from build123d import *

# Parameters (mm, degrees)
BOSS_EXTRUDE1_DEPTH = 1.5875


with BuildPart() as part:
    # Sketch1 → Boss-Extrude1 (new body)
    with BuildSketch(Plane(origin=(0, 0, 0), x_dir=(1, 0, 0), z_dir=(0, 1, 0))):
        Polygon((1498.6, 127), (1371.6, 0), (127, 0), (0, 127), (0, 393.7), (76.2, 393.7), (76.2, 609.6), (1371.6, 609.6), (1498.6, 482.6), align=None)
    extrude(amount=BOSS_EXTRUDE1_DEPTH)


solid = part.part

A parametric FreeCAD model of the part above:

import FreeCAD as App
import Part
import Sketcher
from FreeCAD import Vector
Q = App.Units.Quantity


def add_polygon(sketch, points):
    """Adds a closed chain of lines whose ends are joined by coincident constraints."""
    first, n = sketch.GeometryCount, len(points)
    for a, b in zip(points, points[1:] + points[:1]):
        sketch.addGeometry(Part.LineSegment(App.Vector(*a, 0), App.Vector(*b, 0)), False)
    for i in range(n):
        sketch.addConstraint(Sketcher.Constraint("Coincident", first + i, 2, first + (i + 1) % n, 1))

doc = App.newDocument("Part")
body = doc.addObject("PartDesign::Body", "Body")

# Sketch on XZ plane
sketch1 = doc.addObject("Sketcher::SketchObject", "Sketch")
body.addObject(sketch1)
sketch1.AttachmentSupport = (doc.XZ_Plane, [""])
sketch1.MapMode = "FlatFace"
add_polygon(sketch1, [(1372, 0), (1499, -127), (1499, -483), (1372, -610), (76, -610), (76, -394), (0, -394), (0, -127), (127, 0)])  # lines 0-8
sketch1.addConstraint([
    Sketcher.Constraint("Vertical", 1),
    Sketcher.Constraint("Horizontal", 3),
    Sketcher.Constraint("Vertical", 4),
    Sketcher.Constraint("Horizontal", 5),
    Sketcher.Constraint("Vertical", 6),
    Sketcher.Constraint("Horizontal", 8),
    Sketcher.Constraint("PointOnObject", 5, 2, -2),
    Sketcher.Constraint("PointOnObject", 7, 2, -1),
    Sketcher.Constraint("Perpendicular", 0, 2),
    Sketcher.Constraint("Parallel", 2, 7),
    Sketcher.Constraint("Horizontal", 0, 2, 6, 2),
    Sketcher.Constraint("Vertical", 2, 2, 8, 2),
    Sketcher.Constraint("Equal", 0, 2),
    Sketcher.Constraint("DistanceX", 3, 2, 3, 1, Q("51 in")),
    Sketcher.Constraint("DistanceX", 5, 2, 5, 1, Q("3 in")),
    Sketcher.Constraint("DistanceX", 8, 1, 8, 2, Q("49 in")),
    Sketcher.Constraint("DistanceY", 1, 2, 1, 1, Q("14 in")),
    Sketcher.Constraint("DistanceY", 4, 1, 4, 2, Q("8.5 in")),
])
pad1 = doc.addObject("PartDesign::Pad", "Pad")
body.addObject(pad1)
pad1.Profile = sketch1
pad1.Length = Q("0.0625 in")
pad1.Reversed = True

doc.recompute()
